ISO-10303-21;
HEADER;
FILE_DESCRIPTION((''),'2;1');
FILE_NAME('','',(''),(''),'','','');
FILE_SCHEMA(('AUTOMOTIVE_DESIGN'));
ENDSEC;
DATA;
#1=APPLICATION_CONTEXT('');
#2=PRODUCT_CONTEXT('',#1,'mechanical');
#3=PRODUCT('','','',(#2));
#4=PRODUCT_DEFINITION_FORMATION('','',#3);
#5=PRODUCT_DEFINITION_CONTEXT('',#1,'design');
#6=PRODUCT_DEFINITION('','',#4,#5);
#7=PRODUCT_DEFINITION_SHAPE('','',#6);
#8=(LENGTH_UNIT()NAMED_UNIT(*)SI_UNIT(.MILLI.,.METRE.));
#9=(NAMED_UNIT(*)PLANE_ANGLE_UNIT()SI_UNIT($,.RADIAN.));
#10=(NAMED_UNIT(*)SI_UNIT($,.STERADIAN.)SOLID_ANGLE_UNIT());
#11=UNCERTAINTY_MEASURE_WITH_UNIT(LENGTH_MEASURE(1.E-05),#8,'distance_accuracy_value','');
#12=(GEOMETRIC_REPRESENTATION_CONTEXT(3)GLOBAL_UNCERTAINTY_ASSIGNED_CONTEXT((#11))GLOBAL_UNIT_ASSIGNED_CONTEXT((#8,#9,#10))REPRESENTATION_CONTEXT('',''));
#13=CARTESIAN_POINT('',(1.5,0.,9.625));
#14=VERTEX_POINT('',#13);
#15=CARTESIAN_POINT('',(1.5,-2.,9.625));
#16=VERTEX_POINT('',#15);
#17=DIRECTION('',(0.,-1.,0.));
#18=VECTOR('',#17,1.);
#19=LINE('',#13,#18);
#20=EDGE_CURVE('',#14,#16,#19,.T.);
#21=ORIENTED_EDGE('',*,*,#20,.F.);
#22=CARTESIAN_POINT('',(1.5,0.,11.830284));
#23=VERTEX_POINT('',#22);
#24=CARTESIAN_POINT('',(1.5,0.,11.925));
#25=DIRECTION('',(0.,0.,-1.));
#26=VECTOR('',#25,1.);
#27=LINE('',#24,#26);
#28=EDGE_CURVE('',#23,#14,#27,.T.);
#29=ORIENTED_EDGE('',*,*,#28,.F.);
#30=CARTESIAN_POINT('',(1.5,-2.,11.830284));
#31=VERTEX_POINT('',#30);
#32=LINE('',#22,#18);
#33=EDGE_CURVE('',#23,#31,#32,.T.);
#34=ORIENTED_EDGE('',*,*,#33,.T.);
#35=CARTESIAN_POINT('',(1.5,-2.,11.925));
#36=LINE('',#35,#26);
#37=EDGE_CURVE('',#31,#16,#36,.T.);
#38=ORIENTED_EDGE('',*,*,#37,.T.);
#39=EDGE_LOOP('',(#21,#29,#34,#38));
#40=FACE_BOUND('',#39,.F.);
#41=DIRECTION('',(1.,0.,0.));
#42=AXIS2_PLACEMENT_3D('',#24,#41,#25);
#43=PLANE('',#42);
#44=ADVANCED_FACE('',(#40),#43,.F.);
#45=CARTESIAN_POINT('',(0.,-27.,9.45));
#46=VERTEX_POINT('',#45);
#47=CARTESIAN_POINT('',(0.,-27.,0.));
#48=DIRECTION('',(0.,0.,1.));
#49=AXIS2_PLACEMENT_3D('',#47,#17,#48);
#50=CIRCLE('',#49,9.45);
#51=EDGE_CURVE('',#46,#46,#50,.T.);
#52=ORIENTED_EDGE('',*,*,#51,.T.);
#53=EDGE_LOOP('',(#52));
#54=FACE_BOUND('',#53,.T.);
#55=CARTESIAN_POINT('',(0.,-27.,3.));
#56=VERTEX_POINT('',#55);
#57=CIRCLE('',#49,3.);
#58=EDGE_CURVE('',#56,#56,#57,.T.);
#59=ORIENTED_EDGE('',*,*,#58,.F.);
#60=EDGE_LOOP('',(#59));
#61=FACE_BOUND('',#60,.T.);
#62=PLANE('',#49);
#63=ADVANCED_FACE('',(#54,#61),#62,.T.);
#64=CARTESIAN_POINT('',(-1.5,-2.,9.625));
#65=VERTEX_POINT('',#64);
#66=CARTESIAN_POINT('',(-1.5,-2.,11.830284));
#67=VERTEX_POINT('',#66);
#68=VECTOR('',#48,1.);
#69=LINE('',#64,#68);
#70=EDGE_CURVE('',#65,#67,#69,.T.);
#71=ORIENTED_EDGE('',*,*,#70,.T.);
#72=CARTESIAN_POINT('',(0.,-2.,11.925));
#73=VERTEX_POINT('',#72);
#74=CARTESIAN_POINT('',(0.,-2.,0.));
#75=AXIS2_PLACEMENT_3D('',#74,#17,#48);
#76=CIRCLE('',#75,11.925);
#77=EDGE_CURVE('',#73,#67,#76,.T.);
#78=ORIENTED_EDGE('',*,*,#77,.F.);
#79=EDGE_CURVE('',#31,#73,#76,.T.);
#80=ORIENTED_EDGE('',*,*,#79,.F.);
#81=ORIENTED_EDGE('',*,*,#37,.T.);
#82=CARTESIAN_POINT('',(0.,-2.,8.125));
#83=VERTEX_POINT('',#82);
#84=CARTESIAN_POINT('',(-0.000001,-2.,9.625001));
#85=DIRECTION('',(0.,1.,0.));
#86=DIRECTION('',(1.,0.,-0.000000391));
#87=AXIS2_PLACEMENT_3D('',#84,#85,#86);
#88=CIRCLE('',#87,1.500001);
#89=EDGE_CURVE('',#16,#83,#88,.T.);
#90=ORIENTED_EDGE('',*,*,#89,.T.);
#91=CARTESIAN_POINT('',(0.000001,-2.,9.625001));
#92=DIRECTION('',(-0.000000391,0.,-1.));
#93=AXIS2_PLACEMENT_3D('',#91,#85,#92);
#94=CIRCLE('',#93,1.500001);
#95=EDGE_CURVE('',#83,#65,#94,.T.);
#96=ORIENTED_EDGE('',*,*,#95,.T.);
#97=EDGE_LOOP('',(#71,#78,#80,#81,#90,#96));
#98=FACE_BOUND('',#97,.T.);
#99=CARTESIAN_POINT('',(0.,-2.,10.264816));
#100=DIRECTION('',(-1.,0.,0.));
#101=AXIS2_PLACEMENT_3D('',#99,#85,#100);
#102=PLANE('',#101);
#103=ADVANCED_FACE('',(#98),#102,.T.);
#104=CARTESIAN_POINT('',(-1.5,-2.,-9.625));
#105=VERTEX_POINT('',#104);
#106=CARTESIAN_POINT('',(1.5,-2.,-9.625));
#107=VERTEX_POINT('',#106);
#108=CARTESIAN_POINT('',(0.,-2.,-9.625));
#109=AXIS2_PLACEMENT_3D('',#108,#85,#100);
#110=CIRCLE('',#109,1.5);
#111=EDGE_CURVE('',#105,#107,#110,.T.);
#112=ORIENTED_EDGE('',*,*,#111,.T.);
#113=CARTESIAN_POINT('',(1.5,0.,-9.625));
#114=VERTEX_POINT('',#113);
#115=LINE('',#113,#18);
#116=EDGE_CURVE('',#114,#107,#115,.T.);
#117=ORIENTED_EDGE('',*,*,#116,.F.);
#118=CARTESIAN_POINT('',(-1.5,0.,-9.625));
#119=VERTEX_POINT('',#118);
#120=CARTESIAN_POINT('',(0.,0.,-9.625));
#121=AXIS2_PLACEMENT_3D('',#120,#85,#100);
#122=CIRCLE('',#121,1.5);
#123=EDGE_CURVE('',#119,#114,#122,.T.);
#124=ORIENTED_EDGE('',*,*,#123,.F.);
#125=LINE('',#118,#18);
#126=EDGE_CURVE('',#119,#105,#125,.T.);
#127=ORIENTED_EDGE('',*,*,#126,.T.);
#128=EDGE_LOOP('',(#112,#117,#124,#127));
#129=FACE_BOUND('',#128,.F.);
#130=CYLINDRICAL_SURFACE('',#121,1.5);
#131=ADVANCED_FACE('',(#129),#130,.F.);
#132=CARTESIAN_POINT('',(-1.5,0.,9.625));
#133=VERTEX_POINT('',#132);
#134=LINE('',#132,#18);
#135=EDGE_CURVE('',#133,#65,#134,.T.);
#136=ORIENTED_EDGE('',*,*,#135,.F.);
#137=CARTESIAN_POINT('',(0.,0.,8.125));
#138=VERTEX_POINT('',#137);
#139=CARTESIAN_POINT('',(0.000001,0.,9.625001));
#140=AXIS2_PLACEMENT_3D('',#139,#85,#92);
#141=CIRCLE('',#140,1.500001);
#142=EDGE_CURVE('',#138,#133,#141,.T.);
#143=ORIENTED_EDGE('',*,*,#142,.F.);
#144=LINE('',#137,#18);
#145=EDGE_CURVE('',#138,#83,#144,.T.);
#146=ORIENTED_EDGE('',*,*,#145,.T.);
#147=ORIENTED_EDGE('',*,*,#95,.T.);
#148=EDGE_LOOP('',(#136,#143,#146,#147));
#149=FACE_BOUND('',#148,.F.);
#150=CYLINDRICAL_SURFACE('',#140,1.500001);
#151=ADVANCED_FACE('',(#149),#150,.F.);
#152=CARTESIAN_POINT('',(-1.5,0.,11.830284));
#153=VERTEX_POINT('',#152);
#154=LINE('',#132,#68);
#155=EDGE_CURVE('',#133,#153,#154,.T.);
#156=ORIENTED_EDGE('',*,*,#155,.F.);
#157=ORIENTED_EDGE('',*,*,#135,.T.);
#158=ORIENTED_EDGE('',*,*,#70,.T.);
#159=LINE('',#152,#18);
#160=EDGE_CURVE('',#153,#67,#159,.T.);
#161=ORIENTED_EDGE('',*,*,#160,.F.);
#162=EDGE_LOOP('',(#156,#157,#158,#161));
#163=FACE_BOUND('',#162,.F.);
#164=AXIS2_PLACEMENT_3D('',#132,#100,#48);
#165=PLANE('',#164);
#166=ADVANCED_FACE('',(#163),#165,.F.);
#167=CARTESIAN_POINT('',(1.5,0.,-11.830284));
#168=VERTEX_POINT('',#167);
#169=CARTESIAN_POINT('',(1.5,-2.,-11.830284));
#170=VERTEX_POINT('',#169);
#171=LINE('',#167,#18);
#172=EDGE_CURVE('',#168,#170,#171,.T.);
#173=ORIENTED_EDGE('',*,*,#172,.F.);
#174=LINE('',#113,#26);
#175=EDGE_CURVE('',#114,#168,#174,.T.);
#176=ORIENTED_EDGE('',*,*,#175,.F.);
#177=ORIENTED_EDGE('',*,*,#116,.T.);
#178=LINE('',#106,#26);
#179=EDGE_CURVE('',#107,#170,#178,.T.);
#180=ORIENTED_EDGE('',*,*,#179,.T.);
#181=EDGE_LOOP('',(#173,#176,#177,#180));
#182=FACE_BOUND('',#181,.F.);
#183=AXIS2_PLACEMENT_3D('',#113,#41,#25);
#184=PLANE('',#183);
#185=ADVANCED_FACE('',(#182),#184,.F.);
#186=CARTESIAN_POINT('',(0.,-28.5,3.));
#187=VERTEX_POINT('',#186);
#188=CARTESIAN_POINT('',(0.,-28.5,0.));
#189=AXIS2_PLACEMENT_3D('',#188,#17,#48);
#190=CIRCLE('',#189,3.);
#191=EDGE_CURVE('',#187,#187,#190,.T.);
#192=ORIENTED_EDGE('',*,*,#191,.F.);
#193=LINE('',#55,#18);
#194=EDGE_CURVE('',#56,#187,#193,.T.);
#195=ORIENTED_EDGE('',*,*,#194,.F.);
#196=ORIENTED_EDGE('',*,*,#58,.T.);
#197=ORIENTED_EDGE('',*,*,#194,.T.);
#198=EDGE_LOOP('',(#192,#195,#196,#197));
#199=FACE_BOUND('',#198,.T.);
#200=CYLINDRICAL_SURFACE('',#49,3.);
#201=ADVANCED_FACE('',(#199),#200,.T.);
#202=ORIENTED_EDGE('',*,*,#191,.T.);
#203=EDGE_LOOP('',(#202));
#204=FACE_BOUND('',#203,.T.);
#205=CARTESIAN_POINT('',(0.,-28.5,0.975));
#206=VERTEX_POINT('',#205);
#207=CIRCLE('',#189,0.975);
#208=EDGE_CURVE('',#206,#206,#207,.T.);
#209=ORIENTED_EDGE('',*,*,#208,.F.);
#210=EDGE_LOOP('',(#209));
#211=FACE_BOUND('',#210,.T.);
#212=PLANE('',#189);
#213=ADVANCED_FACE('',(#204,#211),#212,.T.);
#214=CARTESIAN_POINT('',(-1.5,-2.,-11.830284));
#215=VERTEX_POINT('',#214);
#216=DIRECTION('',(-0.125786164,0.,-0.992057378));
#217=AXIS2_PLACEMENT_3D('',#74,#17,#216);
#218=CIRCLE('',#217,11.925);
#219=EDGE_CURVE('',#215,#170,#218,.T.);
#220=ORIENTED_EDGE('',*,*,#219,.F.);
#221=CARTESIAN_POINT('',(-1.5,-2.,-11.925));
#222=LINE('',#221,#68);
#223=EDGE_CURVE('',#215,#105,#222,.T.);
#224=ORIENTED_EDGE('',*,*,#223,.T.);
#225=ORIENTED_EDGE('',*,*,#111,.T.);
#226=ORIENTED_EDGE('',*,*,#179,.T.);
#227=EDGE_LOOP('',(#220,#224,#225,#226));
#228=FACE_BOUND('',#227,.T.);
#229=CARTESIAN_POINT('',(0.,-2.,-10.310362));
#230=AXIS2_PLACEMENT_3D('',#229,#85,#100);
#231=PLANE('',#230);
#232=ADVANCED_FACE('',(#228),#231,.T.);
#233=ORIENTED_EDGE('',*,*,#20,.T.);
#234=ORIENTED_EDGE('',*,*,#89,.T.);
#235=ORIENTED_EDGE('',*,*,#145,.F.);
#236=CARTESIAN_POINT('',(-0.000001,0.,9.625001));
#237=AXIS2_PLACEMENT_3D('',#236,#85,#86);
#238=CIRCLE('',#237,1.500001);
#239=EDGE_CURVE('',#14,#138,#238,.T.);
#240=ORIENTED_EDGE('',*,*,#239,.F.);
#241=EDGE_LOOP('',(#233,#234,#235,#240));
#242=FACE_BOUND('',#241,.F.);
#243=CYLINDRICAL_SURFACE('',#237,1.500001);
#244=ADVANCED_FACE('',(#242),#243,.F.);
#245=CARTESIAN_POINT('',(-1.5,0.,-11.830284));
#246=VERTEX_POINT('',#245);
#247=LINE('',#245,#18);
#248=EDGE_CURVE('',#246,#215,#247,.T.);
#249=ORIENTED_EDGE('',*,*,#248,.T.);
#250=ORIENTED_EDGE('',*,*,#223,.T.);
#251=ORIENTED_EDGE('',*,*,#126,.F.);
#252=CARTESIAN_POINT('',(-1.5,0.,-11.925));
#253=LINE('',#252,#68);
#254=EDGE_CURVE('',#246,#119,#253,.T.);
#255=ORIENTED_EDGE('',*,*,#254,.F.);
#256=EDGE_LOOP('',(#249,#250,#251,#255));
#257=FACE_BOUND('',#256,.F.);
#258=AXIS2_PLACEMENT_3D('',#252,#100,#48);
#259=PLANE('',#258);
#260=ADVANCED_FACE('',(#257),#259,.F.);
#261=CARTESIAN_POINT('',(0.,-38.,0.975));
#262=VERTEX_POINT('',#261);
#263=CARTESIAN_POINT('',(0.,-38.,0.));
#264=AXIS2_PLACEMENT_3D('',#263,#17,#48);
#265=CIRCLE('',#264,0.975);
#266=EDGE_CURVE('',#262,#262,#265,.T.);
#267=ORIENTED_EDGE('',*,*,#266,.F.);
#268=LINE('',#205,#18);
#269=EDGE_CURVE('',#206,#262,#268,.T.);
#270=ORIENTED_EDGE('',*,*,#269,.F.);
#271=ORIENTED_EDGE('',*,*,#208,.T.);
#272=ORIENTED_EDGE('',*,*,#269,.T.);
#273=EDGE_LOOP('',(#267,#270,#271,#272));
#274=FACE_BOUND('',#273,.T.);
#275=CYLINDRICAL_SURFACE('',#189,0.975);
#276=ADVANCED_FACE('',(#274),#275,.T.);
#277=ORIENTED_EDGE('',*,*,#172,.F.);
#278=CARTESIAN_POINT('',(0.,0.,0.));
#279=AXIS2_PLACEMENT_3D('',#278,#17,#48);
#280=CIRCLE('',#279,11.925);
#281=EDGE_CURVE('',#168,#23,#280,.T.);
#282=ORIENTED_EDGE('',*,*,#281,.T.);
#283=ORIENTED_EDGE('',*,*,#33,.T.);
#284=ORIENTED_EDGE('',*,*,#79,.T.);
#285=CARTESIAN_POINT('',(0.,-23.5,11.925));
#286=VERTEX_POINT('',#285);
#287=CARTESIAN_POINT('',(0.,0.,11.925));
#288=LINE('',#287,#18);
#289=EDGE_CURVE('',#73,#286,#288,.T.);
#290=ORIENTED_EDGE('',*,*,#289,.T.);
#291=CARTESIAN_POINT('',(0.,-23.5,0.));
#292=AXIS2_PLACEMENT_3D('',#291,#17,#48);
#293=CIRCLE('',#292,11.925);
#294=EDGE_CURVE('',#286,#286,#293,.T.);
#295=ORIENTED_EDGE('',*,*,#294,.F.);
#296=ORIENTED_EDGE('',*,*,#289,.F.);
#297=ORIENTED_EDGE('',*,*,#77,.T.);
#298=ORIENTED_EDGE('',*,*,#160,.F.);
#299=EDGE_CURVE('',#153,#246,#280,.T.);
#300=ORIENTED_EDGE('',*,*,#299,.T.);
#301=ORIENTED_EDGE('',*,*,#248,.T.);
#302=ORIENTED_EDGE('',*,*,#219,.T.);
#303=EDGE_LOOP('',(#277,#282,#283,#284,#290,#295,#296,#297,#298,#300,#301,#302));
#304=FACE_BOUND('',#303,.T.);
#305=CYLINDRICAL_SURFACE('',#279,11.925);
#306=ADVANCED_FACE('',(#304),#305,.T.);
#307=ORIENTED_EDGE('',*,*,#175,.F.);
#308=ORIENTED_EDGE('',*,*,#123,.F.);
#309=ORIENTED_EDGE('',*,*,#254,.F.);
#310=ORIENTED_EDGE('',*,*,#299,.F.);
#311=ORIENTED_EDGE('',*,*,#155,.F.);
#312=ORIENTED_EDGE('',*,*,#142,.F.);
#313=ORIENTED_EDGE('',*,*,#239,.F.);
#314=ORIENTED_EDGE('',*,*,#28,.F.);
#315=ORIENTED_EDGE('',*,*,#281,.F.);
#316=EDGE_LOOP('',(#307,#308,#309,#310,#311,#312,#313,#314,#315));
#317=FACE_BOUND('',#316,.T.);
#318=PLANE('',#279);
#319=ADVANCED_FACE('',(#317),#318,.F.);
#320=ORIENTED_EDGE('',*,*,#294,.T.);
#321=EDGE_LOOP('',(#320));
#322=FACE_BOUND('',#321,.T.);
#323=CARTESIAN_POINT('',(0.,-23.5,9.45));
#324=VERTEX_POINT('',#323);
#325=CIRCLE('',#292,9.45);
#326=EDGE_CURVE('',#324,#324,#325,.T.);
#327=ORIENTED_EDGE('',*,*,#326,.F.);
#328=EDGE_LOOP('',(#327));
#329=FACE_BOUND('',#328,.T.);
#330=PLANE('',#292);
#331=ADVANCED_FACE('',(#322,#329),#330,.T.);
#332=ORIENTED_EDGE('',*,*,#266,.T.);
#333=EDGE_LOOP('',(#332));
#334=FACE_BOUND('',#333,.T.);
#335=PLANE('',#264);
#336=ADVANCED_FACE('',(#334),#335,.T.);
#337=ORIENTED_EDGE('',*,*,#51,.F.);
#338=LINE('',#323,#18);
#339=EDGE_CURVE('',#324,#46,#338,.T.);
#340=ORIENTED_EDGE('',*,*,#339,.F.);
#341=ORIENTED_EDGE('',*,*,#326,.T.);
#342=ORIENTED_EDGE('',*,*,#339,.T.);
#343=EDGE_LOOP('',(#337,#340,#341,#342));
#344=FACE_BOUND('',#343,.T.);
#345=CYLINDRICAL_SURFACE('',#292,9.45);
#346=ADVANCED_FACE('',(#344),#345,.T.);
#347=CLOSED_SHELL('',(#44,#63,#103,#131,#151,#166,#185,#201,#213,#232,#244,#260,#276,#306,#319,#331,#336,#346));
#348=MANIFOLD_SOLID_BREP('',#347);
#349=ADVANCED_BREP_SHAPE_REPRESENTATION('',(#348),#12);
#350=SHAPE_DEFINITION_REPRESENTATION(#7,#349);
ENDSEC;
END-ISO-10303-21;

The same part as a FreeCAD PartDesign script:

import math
import FreeCAD as App
import Part
import Sketcher

V = App.Vector

doc = App.newDocument("Part")
body = doc.addObject("PartDesign::Body", "Body")

# Sketch on YZ plane
sketch1 = doc.addObject("Sketcher::SketchObject", "Sketch")
body.addObject(sketch1)
sketch1.AttachmentSupport = (doc.YZ_Plane, [""])
sketch1.MapMode = "FlatFace"
sketch1.addGeometry(Part.LineSegment(V(-38, 0, 0), V(0, 0, 0)), False)
sketch1.addGeometry(Part.LineSegment(V(0, 0, 0), V(0, 11.9, 0)), False)
sketch1.addGeometry(Part.LineSegment(V(0, 11.9, 0), V(-23.5, 11.9, 0)), False)
sketch1.addGeometry(Part.LineSegment(V(-23.5, 11.9, 0), V(-23.5, 9.4, 0)), False)
sketch1.addGeometry(Part.LineSegment(V(-23.5, 9.4, 0), V(-27, 9.4, 0)), False)
sketch1.addGeometry(Part.LineSegment(V(-27, 9.4, 0), V(-27, 3, 0)), False)
sketch1.addGeometry(Part.LineSegment(V(-27, 3, 0), V(-28.5, 3, 0)), False)
sketch1.addGeometry(Part.LineSegment(V(-28.5, 3, 0), V(-28.5, 1, 0)), False)
sketch1.addGeometry(Part.LineSegment(V(-28.5, 1, 0), V(-38, 1, 0)), False)
sketch1.addGeometry(Part.LineSegment(V(-38, 1, 0), V(-38, 0, 0)), False)
sketch1.addConstraint(Sketcher.Constraint("Coincident", 0, 2, 1, 1))
sketch1.addConstraint(Sketcher.Constraint("Coincident", 1, 2, 2, 1))
sketch1.addConstraint(Sketcher.Constraint("Coincident", 2, 2, 3, 1))
sketch1.addConstraint(Sketcher.Constraint("Coincident", 3, 2, 4, 1))
sketch1.addConstraint(Sketcher.Constraint("Coincident", 4, 2, 5, 1))
sketch1.addConstraint(Sketcher.Constraint("Coincident", 5, 2, 6, 1))
sketch1.addConstraint(Sketcher.Constraint("Coincident", 6, 2, 7, 1))
sketch1.addConstraint(Sketcher.Constraint("Coincident", 7, 2, 8, 1))
sketch1.addConstraint(Sketcher.Constraint("Coincident", 8, 2, 9, 1))
sketch1.addConstraint(Sketcher.Constraint("Coincident", 9, 2, 0, 1))
sketch1.addConstraint(Sketcher.Constraint("Horizontal", 0))
sketch1.addConstraint(Sketcher.Constraint("Vertical", 1))
sketch1.addConstraint(Sketcher.Constraint("Horizontal", 2))
sketch1.addConstraint(Sketcher.Constraint("Vertical", 3))
sketch1.addConstraint(Sketcher.Constraint("Horizontal", 4))
sketch1.addConstraint(Sketcher.Constraint("Vertical", 5))
sketch1.addConstraint(Sketcher.Constraint("Horizontal", 6))
sketch1.addConstraint(Sketcher.Constraint("Vertical", 7))
sketch1.addConstraint(Sketcher.Constraint("Horizontal", 8))
sketch1.addConstraint(Sketcher.Constraint("Vertical", 9))
sketch1.addConstraint(Sketcher.Constraint("Coincident", 0, 2, -1, 1))
sketch1.addConstraint(Sketcher.Constraint("DistanceX", 0, 1, 0, 2, 38.0))
sketch1.addConstraint(Sketcher.Constraint("DistanceX", 2, 2, 2, 1, 23.5))
sketch1.addConstraint(Sketcher.Constraint("DistanceX", 4, 2, 4, 1, 3.5))
sketch1.addConstraint(Sketcher.Constraint("DistanceX", 6, 2, 6, 1, 1.5))
sketch1.addConstraint(Sketcher.Constraint("DistanceY", -1, 1, 5, 2, 3.0))
sketch1.addConstraint(Sketcher.Constraint("DistanceY", 5, 2, 5, 1, 6.45))
sketch1.addConstraint(Sketcher.Constraint("DistanceY", 1, 1, 1, 2, 11.925))
sketch1.addConstraint(Sketcher.Constraint("DistanceY", 7, 2, 7, 1, 2.025))
revolution = doc.addObject("PartDesign::Revolution", "Revolution")
body.addObject(revolution)
revolution.Profile = sketch1
revolution.ReferenceAxis = (sketch1, ["H_Axis"])
revolution.Angle = 360

# Sketch on XZ plane
sketch2 = doc.addObject("Sketcher::SketchObject", "Sketch001")
body.addObject(sketch2)
sketch2.AttachmentSupport = (doc.XZ_Plane, [""])
sketch2.MapMode = "FlatFace"
sketch2.addGeometry(Part.LineSegment(V(-1.5, 11.9, 0), V(1.5, 11.9, 0)), False)
sketch2.addGeometry(Part.LineSegment(V(1.5, 11.9, 0), V(1.5, 9.6, 0)), False)
sketch2.addGeometry(Part.ArcOfCircle(Part.Circle(V(0, 9.6, 0), V(0, 0, 1), 1.5), math.radians(-90), math.radians(0)), False)
sketch2.addGeometry(Part.ArcOfCircle(Part.Circle(V(0, 9.6, 0), V(0, 0, 1), 1.5), math.radians(-180), math.radians(-90)), False)
sketch2.addGeometry(Part.LineSegment(V(-1.5, 9.6, 0), V(-1.5, 11.9, 0)), False)
sketch2.addGeometry(Part.LineSegment(V(-1.5, -11.9, 0), V(-1.5, -9.6, 0)), False)
sketch2.addGeometry(Part.ArcOfCircle(Part.Circle(V(0, -9.6, 0), V(0, 0, 1), 1.5), math.radians(0), math.radians(180)), False)
sketch2.addGeometry(Part.LineSegment(V(1.5, -9.6, 0), V(1.5, -11.9, 0)), False)
sketch2.addGeometry(Part.LineSegment(V(1.5, -11.9, 0), V(-1.5, -11.9, 0)), False)
sketch2.addConstraint(Sketcher.Constraint("Coincident", 0, 2, 1, 1))
sketch2.addConstraint(Sketcher.Constraint("Tangent", 1, 2, 2, 2))
sketch2.addConstraint(Sketcher.Constraint("Tangent", 2, 1, 3, 2))
sketch2.addConstraint(Sketcher.Constraint("Tangent", 3, 1, 4, 1))
sketch2.addConstraint(Sketcher.Constraint("Coincident", 4, 2, 0, 1))
sketch2.addConstraint(Sketcher.Constraint("Tangent", 5, 2, 6, 2))
sketch2.addConstraint(Sketcher.Constraint("Tangent", 6, 1, 7, 1))
sketch2.addConstraint(Sketcher.Constraint("Coincident", 7, 2, 8, 1))
sketch2.addConstraint(Sketcher.Constraint("Coincident", 8, 2, 5, 1))
sketch2.addConstraint(Sketcher.Constraint("Horizontal", 0))
sketch2.addConstraint(Sketcher.Constraint("Vertical", 1))
sketch2.addConstraint(Sketcher.Constraint("Vertical", 4))
sketch2.addConstraint(Sketcher.Constraint("Vertical", 5))
sketch2.addConstraint(Sketcher.Constraint("Vertical", 7))
sketch2.addConstraint(Sketcher.Constraint("Horizontal", 8))
sketch2.addConstraint(Sketcher.Constraint("Equal", 2, 3))
sketch2.addConstraint(Sketcher.Constraint("Equal", 3, 6))
sketch2.addConstraint(Sketcher.Constraint("Symmetric", 2, 3, 6, 3, -1, 1))
sketch2.addConstraint(Sketcher.Constraint("Symmetric", 0, 2, 7, 2, -1))
sketch2.addConstraint(Sketcher.Constraint("PointOnObject", 2, 1, -2))
sketch2.addConstraint(Sketcher.Constraint("Radius", 2, 1.500001))
sketch2.addConstraint(Sketcher.Constraint("DistanceY", 1, 2, 1, 1, 2.3))
sketch2.addConstraint(Sketcher.Constraint("DistanceY", 6, 3, 2, 3, 19.250001))
pocket1 = doc.addObject("PartDesign::Pocket", "Pocket")
body.addObject(pocket1)
pocket1.Profile = sketch2
pocket1.Length = 2
pocket1.Reversed = True

doc.recompute()
